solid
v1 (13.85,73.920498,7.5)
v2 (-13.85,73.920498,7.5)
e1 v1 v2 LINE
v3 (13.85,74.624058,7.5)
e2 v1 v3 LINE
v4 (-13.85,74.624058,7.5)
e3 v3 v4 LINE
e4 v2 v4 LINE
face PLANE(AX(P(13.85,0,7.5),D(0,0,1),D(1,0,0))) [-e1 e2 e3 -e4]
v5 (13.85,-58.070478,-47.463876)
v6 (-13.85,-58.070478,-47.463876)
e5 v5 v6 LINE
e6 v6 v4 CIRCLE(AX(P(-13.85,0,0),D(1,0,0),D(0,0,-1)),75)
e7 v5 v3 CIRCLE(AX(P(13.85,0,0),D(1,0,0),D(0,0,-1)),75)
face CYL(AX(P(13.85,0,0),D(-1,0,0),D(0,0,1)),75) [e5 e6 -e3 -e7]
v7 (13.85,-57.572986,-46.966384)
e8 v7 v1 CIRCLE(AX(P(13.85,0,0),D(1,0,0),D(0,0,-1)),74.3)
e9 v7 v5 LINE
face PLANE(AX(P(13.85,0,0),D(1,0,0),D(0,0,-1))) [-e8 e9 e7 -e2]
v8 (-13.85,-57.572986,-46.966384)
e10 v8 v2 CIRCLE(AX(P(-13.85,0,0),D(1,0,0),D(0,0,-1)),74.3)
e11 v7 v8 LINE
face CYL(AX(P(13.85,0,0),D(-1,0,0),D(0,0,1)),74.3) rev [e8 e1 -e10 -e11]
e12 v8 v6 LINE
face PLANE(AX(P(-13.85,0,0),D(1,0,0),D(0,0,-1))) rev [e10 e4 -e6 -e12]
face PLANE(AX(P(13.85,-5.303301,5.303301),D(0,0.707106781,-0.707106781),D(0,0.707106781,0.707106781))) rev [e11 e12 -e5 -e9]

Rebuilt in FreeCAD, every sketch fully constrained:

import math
import FreeCAD as App
import Part
import Sketcher
from FreeCAD import Vector
Q = App.Units.Quantity

doc = App.newDocument("Part")
body = doc.addObject("PartDesign::Body", "Body")

sketch1 = doc.addObject("Sketcher::SketchObject", "Sketch")
body.addObject(sketch1)
sketch1.AttachmentSupport = (doc.YZ_Plane, [""])
sketch1.MapMode = "FlatFace"
sketch1.addGeometry([
    Part.ArcOfCircle(Part.Circle(Vector(0, 0, 0), Vector(0, 0, 1), 74.3), math.radians(-141), math.radians(-90)),
    Part.LineSegment(Vector(-57.6, -47, 0), Vector(-58.1, -47.5, 0)),
    Part.ArcOfCircle(Part.Circle(Vector(0, 0, 0), Vector(0, 0, 1), 75), math.radians(-141), math.radians(-90)),
    Part.ArcOfCircle(Part.Circle(Vector(0, 0, 0), Vector(0, 0, 1), 75), math.radians(-90), math.radians(6)),
    Part.LineSegment(Vector(74.6, 7.5, 0), Vector(73.9, 7.5, 0)),
    Part.ArcOfCircle(Part.Circle(Vector(0, 0, 0), Vector(0, 0, 1), 74.3), math.radians(-90), math.radians(6)),
], False)
sketch1.addConstraint([
    Sketcher.Constraint("Coincident", 0, 1, 1, 1),
    Sketcher.Constraint("Coincident", 1, 2, 2, 1),
    Sketcher.Constraint("Tangent", 2, 2, 3, 1),
    Sketcher.Constraint("Coincident", 3, 2, 4, 1),
    Sketcher.Constraint("Coincident", 4, 2, 5, 2),
    Sketcher.Constraint("Tangent", 5, 1, 0, 2),
    Sketcher.Constraint("Horizontal", 4),
    Sketcher.Constraint("Coincident", 0, 3, -1, 1),
    Sketcher.Constraint("Coincident", 2, 3, -1, 1),
    Sketcher.Constraint("Equal", 2, 3),
    Sketcher.Constraint("Equal", 0, 5),
    Sketcher.Constraint("PointOnObject", 2, 2, -2),
    Sketcher.Constraint("PointOnObject", 5, 1, -2),
    Sketcher.Constraint("Radius", 2, Q("75 mm")),
    Sketcher.Constraint("Radius", 0, Q("74.3 mm")),
    Sketcher.Constraint("Angle", 1, Q("-135 deg")),
    Sketcher.Constraint("DistanceY", -1, 1, 3, 2, Q("7.5 mm")),
    Sketcher.Constraint("DistanceX", 1, 2, -1, 1, Q("58.070478 mm")),
])
pad1 = doc.addObject("PartDesign::Pad", "Pad")
body.addObject(pad1)
pad1.Profile = sketch1
pad1.Length = 27.7
pad1.Midplane = True

doc.recompute()
